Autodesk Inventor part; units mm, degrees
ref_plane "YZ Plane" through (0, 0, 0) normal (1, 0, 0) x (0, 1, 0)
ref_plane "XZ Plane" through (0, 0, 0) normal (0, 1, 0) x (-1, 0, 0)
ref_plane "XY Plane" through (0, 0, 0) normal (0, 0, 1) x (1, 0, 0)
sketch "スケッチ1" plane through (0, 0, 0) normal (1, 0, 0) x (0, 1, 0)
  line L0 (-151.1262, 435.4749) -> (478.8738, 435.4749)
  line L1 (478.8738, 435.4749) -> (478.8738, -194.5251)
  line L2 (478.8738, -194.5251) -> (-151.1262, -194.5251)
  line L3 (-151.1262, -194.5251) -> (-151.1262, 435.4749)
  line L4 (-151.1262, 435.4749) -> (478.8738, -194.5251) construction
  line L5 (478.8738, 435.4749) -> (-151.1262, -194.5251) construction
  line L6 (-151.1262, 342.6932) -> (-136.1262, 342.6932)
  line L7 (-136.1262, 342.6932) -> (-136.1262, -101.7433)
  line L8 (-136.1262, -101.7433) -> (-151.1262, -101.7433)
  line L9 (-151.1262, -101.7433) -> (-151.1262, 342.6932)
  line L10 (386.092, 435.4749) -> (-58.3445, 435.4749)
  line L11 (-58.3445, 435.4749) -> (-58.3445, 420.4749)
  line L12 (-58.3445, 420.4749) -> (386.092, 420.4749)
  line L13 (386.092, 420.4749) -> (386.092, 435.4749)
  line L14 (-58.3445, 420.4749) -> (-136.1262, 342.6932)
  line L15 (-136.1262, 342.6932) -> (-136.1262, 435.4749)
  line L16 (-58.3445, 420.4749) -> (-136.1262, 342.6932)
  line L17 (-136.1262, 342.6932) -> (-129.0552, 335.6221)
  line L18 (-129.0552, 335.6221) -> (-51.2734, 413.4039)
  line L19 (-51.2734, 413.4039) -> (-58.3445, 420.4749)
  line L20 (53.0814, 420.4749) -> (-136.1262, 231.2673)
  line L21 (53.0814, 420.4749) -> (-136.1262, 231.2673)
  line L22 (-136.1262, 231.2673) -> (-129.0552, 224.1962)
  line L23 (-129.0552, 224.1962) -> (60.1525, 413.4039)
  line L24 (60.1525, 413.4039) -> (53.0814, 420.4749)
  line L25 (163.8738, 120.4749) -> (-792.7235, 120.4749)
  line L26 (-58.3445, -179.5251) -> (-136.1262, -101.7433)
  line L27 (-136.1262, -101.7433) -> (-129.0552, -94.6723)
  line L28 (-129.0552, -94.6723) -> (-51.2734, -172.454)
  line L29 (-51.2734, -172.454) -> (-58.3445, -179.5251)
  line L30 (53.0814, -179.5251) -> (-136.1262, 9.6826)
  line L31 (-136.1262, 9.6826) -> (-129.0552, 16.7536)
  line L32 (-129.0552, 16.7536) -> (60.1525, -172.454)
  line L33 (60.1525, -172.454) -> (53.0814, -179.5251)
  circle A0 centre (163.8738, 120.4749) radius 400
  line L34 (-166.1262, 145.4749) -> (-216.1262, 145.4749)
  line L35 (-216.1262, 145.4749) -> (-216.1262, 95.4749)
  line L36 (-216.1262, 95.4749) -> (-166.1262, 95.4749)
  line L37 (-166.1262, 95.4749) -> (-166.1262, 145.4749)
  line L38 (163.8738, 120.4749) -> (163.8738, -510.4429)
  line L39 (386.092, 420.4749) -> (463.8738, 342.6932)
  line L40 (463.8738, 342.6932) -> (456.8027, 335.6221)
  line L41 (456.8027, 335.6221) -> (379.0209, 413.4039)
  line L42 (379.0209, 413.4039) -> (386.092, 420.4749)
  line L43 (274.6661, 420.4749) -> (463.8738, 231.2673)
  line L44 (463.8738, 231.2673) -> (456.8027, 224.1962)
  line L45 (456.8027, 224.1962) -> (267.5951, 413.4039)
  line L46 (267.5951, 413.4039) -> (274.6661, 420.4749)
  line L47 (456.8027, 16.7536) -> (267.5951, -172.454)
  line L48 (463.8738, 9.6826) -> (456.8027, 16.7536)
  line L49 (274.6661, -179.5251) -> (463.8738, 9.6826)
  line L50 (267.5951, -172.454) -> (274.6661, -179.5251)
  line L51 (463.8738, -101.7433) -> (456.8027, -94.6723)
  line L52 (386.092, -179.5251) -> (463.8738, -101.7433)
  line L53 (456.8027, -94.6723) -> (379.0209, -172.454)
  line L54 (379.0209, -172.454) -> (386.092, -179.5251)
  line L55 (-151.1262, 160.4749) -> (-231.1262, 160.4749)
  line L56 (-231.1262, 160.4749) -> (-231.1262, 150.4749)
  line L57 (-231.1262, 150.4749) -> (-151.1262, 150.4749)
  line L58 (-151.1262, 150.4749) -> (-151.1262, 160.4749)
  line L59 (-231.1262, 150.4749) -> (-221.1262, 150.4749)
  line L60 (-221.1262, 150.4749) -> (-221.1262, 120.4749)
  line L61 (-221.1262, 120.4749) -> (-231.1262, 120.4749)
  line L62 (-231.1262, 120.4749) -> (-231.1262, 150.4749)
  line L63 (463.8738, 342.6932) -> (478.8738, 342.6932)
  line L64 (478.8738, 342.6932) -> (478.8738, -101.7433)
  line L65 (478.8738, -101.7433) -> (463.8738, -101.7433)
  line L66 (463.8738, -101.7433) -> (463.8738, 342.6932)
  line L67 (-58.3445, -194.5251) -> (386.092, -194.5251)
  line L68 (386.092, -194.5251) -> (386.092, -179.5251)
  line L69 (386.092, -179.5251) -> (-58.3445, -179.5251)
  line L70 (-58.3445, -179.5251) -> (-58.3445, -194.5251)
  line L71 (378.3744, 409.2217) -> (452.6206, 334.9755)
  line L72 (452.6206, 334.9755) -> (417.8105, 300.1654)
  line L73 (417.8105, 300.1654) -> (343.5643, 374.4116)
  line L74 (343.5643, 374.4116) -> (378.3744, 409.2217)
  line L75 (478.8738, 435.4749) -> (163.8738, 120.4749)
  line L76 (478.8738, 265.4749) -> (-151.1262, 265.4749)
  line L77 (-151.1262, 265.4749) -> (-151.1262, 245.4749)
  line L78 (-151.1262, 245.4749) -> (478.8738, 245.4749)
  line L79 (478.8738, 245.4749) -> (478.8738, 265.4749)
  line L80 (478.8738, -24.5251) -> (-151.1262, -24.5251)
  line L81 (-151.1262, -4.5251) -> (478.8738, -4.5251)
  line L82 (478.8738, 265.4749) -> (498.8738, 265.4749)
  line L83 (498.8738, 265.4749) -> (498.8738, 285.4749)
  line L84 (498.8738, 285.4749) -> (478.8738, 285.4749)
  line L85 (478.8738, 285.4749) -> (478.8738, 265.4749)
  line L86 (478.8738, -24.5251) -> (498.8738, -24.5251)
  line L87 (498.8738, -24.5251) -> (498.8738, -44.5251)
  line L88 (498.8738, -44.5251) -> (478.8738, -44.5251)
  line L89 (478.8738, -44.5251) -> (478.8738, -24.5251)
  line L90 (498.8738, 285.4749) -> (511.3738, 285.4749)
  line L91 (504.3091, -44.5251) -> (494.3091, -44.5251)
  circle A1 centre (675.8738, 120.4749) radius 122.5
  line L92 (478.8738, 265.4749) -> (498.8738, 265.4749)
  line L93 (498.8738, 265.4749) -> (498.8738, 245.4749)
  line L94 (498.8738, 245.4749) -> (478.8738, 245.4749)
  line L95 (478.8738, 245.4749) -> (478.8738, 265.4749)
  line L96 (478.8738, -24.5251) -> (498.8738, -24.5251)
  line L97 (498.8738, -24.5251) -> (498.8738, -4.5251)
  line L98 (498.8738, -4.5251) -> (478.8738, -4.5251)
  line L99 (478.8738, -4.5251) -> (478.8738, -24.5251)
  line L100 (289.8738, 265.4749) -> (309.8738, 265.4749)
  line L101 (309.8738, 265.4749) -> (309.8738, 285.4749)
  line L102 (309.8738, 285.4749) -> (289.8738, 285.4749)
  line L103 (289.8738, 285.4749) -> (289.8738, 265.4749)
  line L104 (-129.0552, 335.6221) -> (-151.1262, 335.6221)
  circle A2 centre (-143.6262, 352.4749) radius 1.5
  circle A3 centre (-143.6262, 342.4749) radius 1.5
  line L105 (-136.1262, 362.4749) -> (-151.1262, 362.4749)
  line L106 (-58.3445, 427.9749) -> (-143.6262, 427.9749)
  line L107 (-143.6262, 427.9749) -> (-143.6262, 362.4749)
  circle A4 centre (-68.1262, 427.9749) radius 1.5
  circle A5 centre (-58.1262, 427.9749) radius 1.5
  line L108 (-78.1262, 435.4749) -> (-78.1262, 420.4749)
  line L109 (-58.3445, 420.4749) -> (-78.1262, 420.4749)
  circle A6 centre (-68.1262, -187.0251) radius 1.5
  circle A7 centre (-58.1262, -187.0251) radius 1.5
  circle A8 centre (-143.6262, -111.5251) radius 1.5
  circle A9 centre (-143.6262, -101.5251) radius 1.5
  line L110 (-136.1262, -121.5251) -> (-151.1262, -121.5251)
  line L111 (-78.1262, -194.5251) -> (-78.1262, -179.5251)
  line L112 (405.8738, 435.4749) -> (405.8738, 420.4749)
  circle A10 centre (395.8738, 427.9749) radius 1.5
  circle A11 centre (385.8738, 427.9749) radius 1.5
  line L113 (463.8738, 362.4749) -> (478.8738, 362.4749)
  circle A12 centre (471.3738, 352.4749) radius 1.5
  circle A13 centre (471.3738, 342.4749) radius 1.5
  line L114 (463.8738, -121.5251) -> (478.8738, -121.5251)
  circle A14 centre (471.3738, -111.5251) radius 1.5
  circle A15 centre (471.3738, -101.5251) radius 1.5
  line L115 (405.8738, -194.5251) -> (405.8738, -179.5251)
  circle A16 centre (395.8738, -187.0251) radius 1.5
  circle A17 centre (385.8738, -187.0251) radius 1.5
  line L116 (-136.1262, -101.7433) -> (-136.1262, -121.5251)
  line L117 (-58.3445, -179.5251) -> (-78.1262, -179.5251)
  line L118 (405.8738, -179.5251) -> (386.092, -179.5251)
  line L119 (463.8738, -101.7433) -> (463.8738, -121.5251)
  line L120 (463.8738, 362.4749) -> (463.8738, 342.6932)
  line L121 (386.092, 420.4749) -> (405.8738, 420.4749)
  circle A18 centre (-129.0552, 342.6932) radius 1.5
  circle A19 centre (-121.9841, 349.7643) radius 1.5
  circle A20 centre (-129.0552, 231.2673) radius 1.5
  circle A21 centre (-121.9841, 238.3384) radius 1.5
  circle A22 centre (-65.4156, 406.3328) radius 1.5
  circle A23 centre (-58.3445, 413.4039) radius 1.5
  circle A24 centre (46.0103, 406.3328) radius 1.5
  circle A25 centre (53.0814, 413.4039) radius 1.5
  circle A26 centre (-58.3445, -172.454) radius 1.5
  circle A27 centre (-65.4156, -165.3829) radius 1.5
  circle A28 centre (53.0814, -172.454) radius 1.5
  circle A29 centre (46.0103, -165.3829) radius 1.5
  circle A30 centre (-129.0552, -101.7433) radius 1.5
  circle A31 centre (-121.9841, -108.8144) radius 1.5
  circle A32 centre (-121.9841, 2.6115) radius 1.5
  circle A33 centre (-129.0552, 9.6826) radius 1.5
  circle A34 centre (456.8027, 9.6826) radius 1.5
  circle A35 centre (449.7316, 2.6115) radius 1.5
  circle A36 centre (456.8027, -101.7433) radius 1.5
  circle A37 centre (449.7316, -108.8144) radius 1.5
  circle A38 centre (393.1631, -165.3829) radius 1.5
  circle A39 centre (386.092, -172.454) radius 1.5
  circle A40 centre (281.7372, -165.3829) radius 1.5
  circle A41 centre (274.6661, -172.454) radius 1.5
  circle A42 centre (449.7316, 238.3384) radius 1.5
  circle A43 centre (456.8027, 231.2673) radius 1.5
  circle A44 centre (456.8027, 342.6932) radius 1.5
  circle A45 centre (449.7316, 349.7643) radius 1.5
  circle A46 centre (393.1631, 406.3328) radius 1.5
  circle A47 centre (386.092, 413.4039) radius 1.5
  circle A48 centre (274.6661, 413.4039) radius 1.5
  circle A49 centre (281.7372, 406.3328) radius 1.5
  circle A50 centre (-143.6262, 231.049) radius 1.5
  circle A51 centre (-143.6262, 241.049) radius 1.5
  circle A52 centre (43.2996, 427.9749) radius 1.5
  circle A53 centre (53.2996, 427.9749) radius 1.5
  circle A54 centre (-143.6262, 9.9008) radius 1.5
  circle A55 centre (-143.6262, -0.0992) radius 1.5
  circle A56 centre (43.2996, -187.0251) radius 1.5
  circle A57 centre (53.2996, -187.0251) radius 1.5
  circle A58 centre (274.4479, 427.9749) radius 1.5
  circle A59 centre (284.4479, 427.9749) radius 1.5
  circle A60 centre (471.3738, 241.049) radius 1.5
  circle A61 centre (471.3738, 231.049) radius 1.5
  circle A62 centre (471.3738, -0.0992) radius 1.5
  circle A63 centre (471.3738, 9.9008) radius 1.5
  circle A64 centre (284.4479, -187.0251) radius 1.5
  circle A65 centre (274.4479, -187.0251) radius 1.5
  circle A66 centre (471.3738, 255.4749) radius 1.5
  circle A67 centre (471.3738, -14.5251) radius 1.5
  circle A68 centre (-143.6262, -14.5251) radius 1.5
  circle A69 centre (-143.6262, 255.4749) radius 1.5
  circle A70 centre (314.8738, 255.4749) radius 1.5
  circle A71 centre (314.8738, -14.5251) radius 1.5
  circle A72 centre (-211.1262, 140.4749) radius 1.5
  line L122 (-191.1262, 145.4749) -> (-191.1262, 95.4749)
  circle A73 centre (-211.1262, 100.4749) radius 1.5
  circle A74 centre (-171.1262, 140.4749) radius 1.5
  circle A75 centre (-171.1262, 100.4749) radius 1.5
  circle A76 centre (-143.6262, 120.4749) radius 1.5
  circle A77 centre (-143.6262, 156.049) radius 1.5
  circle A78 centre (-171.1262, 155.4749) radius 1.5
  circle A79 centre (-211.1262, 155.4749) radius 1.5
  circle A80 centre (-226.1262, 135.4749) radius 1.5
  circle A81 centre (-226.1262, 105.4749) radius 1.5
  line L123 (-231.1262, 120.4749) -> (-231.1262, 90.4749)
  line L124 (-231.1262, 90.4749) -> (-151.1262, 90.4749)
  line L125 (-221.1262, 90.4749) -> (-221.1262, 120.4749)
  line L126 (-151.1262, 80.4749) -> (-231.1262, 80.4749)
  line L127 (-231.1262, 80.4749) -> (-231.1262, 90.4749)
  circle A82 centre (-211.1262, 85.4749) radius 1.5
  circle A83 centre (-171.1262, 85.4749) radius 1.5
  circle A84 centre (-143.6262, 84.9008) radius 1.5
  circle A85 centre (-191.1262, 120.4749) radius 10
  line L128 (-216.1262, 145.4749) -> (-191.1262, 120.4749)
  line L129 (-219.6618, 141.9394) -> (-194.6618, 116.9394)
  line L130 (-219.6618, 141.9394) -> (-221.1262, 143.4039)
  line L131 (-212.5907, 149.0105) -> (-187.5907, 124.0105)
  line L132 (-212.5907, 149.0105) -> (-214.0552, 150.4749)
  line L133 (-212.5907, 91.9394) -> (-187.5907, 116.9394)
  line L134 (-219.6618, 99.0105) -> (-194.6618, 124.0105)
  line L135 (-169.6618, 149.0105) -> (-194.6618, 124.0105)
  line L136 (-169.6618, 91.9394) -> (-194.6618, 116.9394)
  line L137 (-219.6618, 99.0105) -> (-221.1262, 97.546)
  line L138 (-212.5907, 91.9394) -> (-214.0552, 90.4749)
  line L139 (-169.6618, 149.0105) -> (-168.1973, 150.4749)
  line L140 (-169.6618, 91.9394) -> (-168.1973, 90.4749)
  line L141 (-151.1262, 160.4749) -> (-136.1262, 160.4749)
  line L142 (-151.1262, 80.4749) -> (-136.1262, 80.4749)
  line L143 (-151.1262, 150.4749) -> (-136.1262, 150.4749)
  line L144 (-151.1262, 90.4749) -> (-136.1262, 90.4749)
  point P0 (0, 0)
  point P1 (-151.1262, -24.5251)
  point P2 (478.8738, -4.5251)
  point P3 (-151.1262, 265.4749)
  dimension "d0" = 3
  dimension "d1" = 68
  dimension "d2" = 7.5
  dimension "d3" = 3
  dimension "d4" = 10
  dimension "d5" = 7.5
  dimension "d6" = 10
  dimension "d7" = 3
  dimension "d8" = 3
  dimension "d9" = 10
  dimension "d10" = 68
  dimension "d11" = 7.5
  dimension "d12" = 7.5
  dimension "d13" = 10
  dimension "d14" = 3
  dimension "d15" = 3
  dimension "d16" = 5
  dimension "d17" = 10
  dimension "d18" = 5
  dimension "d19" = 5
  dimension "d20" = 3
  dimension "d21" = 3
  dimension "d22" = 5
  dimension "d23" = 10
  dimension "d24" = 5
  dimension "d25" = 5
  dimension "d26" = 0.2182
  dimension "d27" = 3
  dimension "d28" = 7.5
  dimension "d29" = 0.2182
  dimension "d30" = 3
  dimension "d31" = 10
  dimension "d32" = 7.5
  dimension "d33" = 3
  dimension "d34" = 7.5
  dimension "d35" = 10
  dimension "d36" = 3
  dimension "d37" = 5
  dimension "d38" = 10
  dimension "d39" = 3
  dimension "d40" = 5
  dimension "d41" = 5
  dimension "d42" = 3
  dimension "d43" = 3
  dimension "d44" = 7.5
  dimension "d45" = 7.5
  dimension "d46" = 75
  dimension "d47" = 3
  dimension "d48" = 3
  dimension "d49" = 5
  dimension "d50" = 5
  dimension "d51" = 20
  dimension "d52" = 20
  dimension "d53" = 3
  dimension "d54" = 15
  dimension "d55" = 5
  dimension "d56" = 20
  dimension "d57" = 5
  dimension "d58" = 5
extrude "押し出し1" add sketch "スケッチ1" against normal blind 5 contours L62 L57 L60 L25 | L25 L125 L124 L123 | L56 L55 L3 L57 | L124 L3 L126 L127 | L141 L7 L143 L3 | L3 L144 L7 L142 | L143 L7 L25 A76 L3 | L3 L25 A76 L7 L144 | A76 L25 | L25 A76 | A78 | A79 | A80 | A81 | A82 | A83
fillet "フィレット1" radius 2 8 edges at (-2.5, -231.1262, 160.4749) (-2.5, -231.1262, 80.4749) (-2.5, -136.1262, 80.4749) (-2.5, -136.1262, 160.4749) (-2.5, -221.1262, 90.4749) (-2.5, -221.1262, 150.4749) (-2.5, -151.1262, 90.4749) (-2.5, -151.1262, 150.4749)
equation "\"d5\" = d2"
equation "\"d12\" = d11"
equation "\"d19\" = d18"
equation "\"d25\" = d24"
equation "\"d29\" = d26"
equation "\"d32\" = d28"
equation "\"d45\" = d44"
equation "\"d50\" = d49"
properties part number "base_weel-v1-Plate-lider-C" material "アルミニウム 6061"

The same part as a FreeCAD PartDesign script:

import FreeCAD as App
import Part
import Sketcher
from FreeCAD import Vector
Q = App.Units.Quantity


def edges_at(feature, points):
    """Names of the edges that pass closest to the given points."""
    edges = feature.Shape.Edges
    near = lambda p: min(range(len(edges)), key=lambda i: edges[i].distToShape(Part.Vertex(*p))[0])
    return sorted({f"Edge{near(p) + 1}" for p in points})

doc = App.newDocument("Part")
body = doc.addObject("PartDesign::Body", "Body")

# Sketch on YZ plane
sketch1 = doc.addObject("Sketcher::SketchObject", "Sketch")
body.addObject(sketch1)
sketch1.AttachmentSupport = (doc.YZ_Plane, [""])
sketch1.MapMode = "FlatFace"
sketch1.addGeometry([
    Part.LineSegment(Vector(-231.1262, 80.4749, 0), Vector(-136.1262, 80.4749, 0)),  # 0
    Part.LineSegment(Vector(-136.1262, 80.4749, 0), Vector(-136.1262, 160.4749, 0)),  # 1
    Part.LineSegment(Vector(-136.1262, 160.4749, 0), Vector(-231.1262, 160.4749, 0)),  # 2
    Part.LineSegment(Vector(-231.1262, 160.4749, 0), Vector(-231.1262, 80.4749, 0)),  # 3
    Part.LineSegment(Vector(-221.1262, 150.4749, 0), Vector(-151.1262, 150.4749, 0)),  # 4
    Part.LineSegment(Vector(-151.1262, 150.4749, 0), Vector(-151.1262, 90.4749, 0)),  # 5
    Part.LineSegment(Vector(-151.1262, 90.4749, 0), Vector(-221.1262, 90.4749, 0)),  # 6
    Part.LineSegment(Vector(-221.1262, 90.4749, 0), Vector(-221.1262, 150.4749, 0)),  # 7
    Part.Circle(Vector(-143.6262, 156.049, 0), Vector(0, 0, 1), 1.5),  # 8
    Part.Circle(Vector(-143.6262, 84.9008, 0), Vector(0, 0, 1), 1.5),  # 9
], False)
sketch1.addConstraint([
    Sketcher.Constraint("Coincident", 0, 2, 1, 1),
    Sketcher.Constraint("Coincident", 1, 2, 2, 1),
    Sketcher.Constraint("Coincident", 2, 2, 3, 1),
    Sketcher.Constraint("Coincident", 3, 2, 0, 1),
    Sketcher.Constraint("Coincident", 4, 2, 5, 1),
    Sketcher.Constraint("Coincident", 5, 2, 6, 1),
    Sketcher.Constraint("Coincident", 6, 2, 7, 1),
    Sketcher.Constraint("Coincident", 7, 2, 4, 1),
    Sketcher.Constraint("Horizontal", 0),
    Sketcher.Constraint("Vertical", 1),
    Sketcher.Constraint("Horizontal", 2),
    Sketcher.Constraint("Vertical", 3),
    Sketcher.Constraint("Horizontal", 4),
    Sketcher.Constraint("Vertical", 5),
    Sketcher.Constraint("Horizontal", 6),
    Sketcher.Constraint("Vertical", 7),
    Sketcher.Constraint("Equal", 8, 9),
    Sketcher.Constraint("Vertical", 8, 3, 9, 3),
    Sketcher.Constraint("Diameter", 8, Q("3 mm")),
    Sketcher.Constraint("DistanceX", 4, 2, 1, 2, Q("15 mm")),
    Sketcher.Constraint("DistanceY", 4, 2, 1, 2, Q("10 mm")),
    Sketcher.Constraint("DistanceY", 0, 2, 5, 2, Q("10 mm")),
    Sketcher.Constraint("DistanceX", 3, 2, 6, 2, Q("10 mm")),
    Sketcher.Constraint("DistanceX", 9, 3, 0, 2, Q("7.5 mm")),
    Sketcher.Constraint("DistanceX", 0, 1, 0, 2, Q("95 mm")),
    Sketcher.Constraint("DistanceY", 1, 1, 1, 2, Q("80 mm")),
    Sketcher.Constraint("DistanceY", -1, 1, 8, 3, Q("156.049 mm")),
    Sketcher.Constraint("DistanceY", -1, 1, 0, 2, Q("80.475 mm")),
    Sketcher.Constraint("DistanceY", 0, 2, 9, 3, Q("4.426 mm")),
    Sketcher.Constraint("DistanceX", 8, 3, -1, 1, Q("143.6262 mm")),
])
pad1 = doc.addObject("PartDesign::Pad", "Pad")
body.addObject(pad1)
pad1.Profile = sketch1
pad1.Length = 5
pad1.Reversed = True
doc.recompute()

fillet = doc.addObject("PartDesign::Fillet", "Fillet")
body.addObject(fillet)
fillet.Base = (pad1, edges_at(pad1, [
    (-2.5, -231.126, 160.475),
    (-2.5, -231.126, 80.475),
    (-2.5, -136.126, 80.475),
    (-2.5, -136.126, 160.475),
    (-2.5, -221.126, 90.475),
    (-2.5, -221.126, 150.475),
    (-2.5, -151.126, 90.475),
    (-2.5, -151.126, 150.475),
]))
fillet.Radius = 2

doc.recompute()
